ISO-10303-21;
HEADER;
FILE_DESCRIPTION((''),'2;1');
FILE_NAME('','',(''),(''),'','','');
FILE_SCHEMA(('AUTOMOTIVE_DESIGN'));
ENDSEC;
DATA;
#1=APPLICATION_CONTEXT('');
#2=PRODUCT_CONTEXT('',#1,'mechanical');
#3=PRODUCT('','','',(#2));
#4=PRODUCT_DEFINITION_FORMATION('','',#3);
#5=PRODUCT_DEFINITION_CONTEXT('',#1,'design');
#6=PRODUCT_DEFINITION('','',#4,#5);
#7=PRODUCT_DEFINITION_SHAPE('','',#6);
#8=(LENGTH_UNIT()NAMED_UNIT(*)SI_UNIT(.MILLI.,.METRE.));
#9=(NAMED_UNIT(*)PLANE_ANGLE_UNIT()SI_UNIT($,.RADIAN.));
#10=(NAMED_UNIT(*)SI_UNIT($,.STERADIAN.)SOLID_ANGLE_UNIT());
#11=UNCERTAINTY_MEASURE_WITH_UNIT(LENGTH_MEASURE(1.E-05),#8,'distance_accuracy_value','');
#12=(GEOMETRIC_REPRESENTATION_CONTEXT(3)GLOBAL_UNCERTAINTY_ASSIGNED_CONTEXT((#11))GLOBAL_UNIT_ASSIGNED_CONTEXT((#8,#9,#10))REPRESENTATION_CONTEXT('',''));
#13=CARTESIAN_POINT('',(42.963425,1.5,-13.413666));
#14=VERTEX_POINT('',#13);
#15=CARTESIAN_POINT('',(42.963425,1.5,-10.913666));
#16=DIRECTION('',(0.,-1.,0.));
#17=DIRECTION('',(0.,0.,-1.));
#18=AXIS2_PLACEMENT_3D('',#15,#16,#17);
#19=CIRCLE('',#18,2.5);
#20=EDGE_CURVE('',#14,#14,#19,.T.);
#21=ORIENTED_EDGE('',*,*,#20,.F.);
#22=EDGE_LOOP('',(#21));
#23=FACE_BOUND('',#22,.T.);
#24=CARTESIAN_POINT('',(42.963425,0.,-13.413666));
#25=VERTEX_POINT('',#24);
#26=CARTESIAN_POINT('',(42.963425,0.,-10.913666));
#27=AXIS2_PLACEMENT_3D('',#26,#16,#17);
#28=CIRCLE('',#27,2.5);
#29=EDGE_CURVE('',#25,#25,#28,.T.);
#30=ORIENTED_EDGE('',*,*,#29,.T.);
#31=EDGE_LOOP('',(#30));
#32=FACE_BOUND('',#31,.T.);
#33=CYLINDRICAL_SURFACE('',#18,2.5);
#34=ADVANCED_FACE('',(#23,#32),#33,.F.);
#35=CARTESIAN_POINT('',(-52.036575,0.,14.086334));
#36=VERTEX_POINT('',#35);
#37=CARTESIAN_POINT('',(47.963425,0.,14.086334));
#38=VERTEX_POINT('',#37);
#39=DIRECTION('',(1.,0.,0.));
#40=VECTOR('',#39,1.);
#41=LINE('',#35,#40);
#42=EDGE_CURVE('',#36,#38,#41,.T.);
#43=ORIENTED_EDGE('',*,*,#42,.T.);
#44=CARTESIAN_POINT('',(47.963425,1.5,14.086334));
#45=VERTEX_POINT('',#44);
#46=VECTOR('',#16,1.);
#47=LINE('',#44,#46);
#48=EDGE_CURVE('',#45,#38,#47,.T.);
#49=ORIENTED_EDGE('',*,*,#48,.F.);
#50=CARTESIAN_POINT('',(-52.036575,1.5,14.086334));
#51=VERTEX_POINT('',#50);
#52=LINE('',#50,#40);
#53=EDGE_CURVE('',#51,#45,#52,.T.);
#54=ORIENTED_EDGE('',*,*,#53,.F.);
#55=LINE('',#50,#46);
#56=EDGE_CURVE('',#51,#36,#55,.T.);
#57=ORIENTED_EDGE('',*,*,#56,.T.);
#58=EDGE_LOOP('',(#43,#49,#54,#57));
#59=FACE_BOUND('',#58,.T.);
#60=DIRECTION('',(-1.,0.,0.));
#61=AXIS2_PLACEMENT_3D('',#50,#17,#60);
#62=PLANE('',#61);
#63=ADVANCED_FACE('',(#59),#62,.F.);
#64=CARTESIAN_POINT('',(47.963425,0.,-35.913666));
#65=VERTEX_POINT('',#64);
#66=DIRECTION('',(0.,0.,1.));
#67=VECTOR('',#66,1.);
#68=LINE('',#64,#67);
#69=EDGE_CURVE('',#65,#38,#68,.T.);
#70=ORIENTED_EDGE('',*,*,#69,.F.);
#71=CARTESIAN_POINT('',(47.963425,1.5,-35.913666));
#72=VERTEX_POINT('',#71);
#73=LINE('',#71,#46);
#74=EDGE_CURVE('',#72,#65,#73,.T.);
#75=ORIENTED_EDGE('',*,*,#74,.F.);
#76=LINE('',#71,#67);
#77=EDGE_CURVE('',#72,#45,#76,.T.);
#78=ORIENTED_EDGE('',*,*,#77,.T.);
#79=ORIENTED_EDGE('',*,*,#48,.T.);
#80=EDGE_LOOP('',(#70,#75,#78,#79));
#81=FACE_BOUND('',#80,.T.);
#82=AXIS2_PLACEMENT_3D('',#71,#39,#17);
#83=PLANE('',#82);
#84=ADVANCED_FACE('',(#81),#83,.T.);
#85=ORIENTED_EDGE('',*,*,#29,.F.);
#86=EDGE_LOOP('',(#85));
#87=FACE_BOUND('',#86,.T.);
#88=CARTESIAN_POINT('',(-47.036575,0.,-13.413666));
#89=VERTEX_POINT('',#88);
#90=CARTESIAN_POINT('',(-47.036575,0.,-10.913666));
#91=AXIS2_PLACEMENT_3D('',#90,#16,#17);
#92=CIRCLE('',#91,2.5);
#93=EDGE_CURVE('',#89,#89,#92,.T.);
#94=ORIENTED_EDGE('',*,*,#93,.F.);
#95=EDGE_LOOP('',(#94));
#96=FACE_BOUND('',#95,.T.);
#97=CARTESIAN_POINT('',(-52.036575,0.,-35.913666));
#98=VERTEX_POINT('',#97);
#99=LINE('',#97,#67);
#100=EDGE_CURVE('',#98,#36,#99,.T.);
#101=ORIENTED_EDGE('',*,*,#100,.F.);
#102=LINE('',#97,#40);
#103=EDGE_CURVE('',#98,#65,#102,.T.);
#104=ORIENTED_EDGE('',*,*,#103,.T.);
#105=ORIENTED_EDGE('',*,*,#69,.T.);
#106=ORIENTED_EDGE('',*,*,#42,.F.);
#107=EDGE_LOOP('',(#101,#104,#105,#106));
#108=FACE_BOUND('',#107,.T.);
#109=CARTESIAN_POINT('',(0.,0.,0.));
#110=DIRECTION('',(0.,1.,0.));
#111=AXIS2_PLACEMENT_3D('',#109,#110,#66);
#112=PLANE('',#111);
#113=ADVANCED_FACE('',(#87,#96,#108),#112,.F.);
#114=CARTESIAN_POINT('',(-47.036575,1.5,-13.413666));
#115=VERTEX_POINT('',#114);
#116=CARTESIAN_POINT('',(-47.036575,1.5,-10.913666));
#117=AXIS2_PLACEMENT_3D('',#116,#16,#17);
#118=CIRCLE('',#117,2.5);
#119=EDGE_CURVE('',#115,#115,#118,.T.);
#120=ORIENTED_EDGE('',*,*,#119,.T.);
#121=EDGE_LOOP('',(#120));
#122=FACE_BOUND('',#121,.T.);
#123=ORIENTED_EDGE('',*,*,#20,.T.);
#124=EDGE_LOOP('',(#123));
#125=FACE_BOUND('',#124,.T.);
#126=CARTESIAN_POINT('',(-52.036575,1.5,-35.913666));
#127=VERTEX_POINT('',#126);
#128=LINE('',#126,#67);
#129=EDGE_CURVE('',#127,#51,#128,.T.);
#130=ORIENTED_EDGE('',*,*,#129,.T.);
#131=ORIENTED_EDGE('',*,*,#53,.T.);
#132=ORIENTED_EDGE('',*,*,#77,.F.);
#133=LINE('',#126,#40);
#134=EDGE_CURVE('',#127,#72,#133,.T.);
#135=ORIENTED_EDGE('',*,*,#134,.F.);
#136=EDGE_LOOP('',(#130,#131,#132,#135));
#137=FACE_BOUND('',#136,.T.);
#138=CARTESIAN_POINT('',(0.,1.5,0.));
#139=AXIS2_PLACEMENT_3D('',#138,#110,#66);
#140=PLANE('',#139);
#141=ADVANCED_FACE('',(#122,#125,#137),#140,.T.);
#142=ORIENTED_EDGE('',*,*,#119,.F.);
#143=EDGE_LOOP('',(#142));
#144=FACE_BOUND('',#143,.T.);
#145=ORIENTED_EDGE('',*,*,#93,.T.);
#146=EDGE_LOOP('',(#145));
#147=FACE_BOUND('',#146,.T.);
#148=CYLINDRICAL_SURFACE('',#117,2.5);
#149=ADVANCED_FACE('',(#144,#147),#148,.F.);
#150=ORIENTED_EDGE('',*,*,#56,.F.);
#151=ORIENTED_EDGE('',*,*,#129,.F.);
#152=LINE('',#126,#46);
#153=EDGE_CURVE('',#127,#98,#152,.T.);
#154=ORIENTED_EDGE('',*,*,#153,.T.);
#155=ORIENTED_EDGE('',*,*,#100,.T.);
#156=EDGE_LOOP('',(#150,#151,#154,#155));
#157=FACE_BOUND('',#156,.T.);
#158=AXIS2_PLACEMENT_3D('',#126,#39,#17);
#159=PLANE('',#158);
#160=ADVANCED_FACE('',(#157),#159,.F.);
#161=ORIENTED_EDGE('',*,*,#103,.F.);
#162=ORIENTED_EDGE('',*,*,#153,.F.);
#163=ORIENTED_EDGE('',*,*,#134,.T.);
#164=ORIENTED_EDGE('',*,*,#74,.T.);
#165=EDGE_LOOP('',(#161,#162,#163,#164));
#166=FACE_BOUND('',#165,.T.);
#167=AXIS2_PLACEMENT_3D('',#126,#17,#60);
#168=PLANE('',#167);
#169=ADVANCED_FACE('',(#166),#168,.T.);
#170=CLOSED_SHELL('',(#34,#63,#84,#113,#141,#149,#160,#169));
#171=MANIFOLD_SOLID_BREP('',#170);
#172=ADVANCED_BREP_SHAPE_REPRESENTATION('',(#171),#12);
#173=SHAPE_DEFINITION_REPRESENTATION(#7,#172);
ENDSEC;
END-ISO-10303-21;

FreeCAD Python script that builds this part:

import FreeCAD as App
import Part
import Sketcher
from FreeCAD import Vector

doc = App.newDocument("Part")
params = doc.addObject("Spreadsheet::Sheet", "Params")
for row, (alias, value) in enumerate([
    ("sketch1_width", "100 mm"),
    ("sketch1_height", "50 mm"),
    ("pad1_length", "1.5 mm"),
    ("sketch2_diameter", "5 mm"),
], start=1):
    params.set(f"A{row}", alias)
    params.set(f"B{row}", "=" + value)
    params.setAlias(f"B{row}", alias)

body = doc.addObject("PartDesign::Body", "Body")

# Sketch on XZ plane
sketch1 = body.newObject("Sketcher::SketchObject", "Sketch")
sketch1.AttachmentSupport = (doc.getObject("XZ_Plane"), [""])
sketch1.MapMode = "FlatFace"
sketch1.addGeometry([
    Part.LineSegment(Vector(-52, -36, 0), Vector(-52, 14, 0)),
    Part.LineSegment(Vector(-52, 14, 0), Vector(48, 14, 0)),
    Part.LineSegment(Vector(48, 14, 0), Vector(48, -36, 0)),
    Part.LineSegment(Vector(48, -36, 0), Vector(-52, -36, 0)),
], False)
sketch1.addConstraint([
    Sketcher.Constraint("Coincident", 0, 2, 1, 1),
    Sketcher.Constraint("Coincident", 1, 2, 2, 1),
    Sketcher.Constraint("Coincident", 2, 2, 3, 1),
    Sketcher.Constraint("Coincident", 3, 2, 0, 1),
    Sketcher.Constraint("Vertical", 0),
    Sketcher.Constraint("Horizontal", 1),
    Sketcher.Constraint("Vertical", 2),
    Sketcher.Constraint("Horizontal", 3),
    Sketcher.Constraint("DistanceX", 1, 1, 1, 2, 100.0),
    Sketcher.Constraint("DistanceY", 0, 1, 0, 2, 50.0),
    Sketcher.Constraint("DistanceX", 0, 2, -1, 1, 52.036575),
    Sketcher.Constraint("DistanceY", -1, 1, 0, 2, 14.086334),
])
sketch1.setExpression("Constraints[8]", "Params.sketch1_width")
sketch1.setExpression("Constraints[9]", "Params.sketch1_height")
pad1 = body.newObject("PartDesign::Pad", "Pad")
pad1.Profile = sketch1
pad1.setExpression("Length", "Params.pad1_length")
pad1.Reversed = True

# Sketch on XZ plane
sketch2 = body.newObject("Sketcher::SketchObject", "Sketch001")
sketch2.AttachmentSupport = (doc.getObject("XZ_Plane"), [""])
sketch2.MapMode = "FlatFace"
sketch2.addGeometry([
    Part.Circle(Vector(-47, -10.9, 0), Vector(0, 0, 1), 2.5),
    Part.Circle(Vector(43, -10.9, 0), Vector(0, 0, 1), 2.5),
], False)
sketch2.addConstraint([
    Sketcher.Constraint("Equal", 0, 1),
    Sketcher.Constraint("Horizontal", 0, 3, 1, 3),
    Sketcher.Constraint("Diameter", 0, 5.0),
    Sketcher.Constraint("DistanceX", 0, 3, 1, 3, 90.0),
    Sketcher.Constraint("DistanceX", 0, 3, -1, 1, 47.036575),
    Sketcher.Constraint("DistanceY", 0, 3, -1, 1, 10.913666),
])
sketch2.setExpression("Constraints[2]", "Params.sketch2_diameter")
pocket1 = body.newObject("PartDesign::Pocket", "Pocket")
pocket1.Profile = sketch2
pocket1.Type = "ThroughAll"

doc.recompute()
